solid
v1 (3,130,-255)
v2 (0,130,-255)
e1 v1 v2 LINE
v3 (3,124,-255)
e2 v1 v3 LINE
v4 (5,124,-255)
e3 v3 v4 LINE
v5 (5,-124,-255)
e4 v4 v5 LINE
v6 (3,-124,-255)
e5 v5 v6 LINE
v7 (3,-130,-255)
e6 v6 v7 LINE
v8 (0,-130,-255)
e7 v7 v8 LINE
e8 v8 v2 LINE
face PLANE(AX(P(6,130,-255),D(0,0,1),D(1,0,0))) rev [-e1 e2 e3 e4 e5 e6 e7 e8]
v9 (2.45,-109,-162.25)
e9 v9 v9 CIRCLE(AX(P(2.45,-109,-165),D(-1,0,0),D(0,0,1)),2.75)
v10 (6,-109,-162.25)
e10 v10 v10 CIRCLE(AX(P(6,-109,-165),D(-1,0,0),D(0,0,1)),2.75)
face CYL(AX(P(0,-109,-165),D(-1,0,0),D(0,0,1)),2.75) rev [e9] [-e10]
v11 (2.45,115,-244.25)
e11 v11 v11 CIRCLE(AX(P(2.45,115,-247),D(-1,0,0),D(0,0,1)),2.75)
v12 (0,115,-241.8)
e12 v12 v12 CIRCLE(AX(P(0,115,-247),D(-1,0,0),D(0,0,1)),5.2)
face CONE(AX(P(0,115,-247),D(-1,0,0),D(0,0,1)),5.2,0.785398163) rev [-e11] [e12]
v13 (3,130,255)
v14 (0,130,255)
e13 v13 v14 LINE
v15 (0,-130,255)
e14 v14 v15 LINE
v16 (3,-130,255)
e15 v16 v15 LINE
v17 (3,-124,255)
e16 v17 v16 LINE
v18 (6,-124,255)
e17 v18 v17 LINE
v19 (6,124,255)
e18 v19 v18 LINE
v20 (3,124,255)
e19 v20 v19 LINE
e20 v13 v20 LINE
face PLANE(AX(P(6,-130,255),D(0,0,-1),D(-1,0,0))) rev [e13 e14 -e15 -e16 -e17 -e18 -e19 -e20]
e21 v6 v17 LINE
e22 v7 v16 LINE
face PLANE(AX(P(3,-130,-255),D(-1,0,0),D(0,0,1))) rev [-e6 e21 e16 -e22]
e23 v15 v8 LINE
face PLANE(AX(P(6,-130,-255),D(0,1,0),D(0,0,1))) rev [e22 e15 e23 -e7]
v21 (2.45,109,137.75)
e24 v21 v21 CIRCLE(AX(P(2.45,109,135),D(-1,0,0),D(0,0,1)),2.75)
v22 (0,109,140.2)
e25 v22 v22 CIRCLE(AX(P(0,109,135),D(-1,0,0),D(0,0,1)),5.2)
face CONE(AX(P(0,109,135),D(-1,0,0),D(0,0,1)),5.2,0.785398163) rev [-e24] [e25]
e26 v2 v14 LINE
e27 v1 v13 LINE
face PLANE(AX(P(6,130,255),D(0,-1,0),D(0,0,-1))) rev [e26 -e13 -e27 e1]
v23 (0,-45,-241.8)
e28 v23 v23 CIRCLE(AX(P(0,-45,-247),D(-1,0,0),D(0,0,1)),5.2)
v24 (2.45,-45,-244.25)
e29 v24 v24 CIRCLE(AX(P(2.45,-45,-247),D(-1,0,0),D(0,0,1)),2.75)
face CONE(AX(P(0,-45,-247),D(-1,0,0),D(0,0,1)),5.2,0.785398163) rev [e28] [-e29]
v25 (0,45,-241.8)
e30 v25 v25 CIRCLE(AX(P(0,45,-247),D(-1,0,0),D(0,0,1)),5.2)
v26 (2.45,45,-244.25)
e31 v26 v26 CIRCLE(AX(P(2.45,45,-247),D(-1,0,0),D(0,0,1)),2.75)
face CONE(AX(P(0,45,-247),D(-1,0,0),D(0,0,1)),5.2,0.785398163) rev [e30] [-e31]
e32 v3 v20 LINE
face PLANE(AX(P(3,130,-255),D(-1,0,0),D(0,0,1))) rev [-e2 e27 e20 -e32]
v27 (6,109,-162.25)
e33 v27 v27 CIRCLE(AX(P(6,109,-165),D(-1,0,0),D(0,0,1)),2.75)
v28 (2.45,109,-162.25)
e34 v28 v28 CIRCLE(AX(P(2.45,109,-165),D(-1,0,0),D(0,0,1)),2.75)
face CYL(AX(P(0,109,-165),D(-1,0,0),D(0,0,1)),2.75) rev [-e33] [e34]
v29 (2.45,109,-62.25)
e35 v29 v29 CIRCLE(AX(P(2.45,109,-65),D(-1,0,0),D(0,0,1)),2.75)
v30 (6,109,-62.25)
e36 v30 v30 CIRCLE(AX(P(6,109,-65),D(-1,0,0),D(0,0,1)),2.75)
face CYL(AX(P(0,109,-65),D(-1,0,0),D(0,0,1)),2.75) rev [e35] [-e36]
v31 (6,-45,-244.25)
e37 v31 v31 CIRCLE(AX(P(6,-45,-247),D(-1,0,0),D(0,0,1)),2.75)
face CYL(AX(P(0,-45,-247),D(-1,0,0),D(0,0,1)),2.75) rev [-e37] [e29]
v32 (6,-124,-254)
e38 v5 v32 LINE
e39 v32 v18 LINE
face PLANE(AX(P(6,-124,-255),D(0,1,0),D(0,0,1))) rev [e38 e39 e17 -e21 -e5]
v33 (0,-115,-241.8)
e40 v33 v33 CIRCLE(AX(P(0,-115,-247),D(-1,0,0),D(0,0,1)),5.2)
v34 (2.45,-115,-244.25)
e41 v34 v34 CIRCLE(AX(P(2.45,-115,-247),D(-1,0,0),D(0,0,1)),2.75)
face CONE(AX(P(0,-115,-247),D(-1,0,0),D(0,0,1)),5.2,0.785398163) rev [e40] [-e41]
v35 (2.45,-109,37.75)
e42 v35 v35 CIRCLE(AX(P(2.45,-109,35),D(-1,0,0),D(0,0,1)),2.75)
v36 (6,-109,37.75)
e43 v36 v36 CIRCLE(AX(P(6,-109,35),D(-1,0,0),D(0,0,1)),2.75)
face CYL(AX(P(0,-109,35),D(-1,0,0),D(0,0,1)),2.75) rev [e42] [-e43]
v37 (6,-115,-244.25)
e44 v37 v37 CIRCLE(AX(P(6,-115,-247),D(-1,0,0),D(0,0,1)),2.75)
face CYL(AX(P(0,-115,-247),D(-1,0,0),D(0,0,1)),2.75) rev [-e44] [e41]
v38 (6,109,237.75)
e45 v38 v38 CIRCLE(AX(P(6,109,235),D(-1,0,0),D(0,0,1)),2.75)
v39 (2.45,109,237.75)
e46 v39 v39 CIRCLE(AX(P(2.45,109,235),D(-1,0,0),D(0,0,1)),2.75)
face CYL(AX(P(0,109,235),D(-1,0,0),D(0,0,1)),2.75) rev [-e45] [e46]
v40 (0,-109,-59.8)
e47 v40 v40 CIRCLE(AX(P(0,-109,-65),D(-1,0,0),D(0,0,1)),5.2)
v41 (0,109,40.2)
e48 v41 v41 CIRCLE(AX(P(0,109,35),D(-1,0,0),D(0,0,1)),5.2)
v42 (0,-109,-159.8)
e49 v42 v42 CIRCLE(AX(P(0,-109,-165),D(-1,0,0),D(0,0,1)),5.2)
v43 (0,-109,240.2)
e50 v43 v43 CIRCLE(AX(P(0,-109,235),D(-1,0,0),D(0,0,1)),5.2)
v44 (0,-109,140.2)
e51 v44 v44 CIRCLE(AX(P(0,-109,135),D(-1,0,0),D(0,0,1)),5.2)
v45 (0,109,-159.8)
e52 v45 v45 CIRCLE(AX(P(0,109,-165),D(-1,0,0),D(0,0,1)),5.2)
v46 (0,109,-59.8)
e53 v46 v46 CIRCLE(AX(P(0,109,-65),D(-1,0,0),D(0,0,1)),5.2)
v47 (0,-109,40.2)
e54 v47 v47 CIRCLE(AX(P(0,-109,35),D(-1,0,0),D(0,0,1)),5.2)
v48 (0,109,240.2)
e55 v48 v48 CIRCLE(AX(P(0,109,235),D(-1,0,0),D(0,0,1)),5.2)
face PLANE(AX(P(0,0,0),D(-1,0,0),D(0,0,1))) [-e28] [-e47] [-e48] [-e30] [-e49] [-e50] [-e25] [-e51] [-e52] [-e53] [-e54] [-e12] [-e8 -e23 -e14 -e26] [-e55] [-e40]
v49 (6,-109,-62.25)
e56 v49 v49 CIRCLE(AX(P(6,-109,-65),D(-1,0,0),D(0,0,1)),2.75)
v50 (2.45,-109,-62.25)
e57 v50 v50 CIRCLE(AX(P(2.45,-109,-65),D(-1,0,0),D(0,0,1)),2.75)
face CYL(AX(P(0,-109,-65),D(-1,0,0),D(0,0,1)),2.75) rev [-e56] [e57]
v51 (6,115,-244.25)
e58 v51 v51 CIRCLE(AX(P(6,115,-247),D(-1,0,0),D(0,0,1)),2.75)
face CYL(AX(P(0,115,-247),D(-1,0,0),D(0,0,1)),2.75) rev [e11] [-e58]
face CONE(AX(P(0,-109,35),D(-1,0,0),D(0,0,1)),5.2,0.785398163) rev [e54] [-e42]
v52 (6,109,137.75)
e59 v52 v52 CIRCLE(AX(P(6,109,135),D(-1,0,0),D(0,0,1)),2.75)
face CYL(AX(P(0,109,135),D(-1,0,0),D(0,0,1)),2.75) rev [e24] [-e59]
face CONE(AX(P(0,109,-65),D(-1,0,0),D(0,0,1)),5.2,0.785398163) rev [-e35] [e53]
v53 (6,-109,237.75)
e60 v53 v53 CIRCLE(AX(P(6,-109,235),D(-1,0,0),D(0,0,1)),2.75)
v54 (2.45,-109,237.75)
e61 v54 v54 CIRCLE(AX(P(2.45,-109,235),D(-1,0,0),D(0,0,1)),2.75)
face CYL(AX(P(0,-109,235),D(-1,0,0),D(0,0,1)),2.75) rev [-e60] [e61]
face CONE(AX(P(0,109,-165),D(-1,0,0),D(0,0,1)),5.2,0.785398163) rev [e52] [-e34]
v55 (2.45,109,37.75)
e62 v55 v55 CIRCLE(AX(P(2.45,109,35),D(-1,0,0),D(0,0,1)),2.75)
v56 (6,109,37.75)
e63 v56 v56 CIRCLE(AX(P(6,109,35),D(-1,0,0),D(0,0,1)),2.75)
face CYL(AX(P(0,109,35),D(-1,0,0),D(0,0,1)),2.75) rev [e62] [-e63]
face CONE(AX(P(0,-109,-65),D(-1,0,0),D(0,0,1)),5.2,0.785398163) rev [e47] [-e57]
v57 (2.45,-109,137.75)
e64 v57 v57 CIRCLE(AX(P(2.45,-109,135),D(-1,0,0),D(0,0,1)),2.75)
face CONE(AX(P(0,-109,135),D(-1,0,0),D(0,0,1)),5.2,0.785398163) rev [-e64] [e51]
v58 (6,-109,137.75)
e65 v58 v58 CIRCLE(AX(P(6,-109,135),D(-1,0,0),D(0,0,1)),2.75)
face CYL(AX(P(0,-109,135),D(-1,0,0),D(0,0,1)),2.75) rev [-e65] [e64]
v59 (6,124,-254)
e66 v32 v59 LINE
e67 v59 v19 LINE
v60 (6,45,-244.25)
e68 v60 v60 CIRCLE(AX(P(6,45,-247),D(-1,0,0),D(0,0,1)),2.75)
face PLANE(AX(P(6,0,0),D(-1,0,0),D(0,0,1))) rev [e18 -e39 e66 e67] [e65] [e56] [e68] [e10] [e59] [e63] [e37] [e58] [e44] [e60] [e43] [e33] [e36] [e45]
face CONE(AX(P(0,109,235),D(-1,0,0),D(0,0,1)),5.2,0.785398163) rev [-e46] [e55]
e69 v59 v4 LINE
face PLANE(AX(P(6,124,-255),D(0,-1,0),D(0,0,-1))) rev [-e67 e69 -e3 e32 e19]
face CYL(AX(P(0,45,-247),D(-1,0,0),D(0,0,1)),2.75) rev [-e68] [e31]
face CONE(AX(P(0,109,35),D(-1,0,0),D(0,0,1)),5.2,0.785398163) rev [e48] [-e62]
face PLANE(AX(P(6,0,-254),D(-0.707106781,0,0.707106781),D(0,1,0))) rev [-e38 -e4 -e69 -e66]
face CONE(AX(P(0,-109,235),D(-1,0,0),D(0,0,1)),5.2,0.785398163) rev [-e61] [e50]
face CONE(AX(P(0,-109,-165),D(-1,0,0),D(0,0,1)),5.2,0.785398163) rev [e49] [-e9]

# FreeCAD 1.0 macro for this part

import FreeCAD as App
import Part
import Sketcher


def edges_at(feature, points):
    """Names of the edges that pass closest to the given points."""
    edges = feature.Shape.Edges
    near = lambda p: min(range(len(edges)), key=lambda i: edges[i].distToShape(Part.Vertex(*p))[0])
    return sorted({f"Edge{near(p) + 1}" for p in points})

doc = App.newDocument("Part")
params = doc.addObject("Spreadsheet::Sheet", "Params")
for row, (alias, value) in enumerate([
    ("sketch1_width", "260 mm"),
    ("sketch1_height", "510 mm"),
    ("pad1_length", "6 mm"),
    ("sketch2_width", "3 mm"),
    ("sketch2_height", "6 mm"),
    ("sketch3_diameter", "5.5 mm"),
    ("hole_diameter", "5.5 mm"),
    ("hole_csink_diameter", "10.4 mm"),
    ("chamfer_size", "1 mm"),
    ("sketch4_diameter", "5.5 mm"),
    ("hole2_diameter", "5.5 mm"),
    ("hole2_csink_diameter", "10.4 mm"),
    ("linearpattern_pitch", "100 mm"),
    ("sketch5_diameter", "5.5 mm"),
    ("hole3_diameter", "5.5 mm"),
    ("hole3_csink_diameter", "10.4 mm"),
    ("sketch6_diameter", "5.5 mm"),
    ("hole4_diameter", "5.5 mm"),
    ("hole4_csink_diameter", "10.4 mm"),
    ("sketch7_diameter", "5.5 mm"),
    ("hole5_diameter", "5.5 mm"),
    ("hole5_csink_diameter", "10.4 mm"),
    ("sketch8_diameter", "5.5 mm"),
    ("hole6_diameter", "5.5 mm"),
    ("hole6_csink_diameter", "10.4 mm"),
], start=1):
    params.set(f"A{row}", alias)
    params.set(f"B{row}", "=" + value)
    params.setAlias(f"B{row}", alias)

body = doc.addObject("PartDesign::Body", "Body")

sketch1 = body.newObject("Sketcher::SketchObject", "Sketch")
sketch1.AttachmentSupport = (doc.getObject("YZ_Plane"), [""])
sketch1.MapMode = "FlatFace"
sketch1.addGeometry([
    Part.LineSegment(App.Vector(130, 255, 0), App.Vector(-130, 255, 0)),
    Part.LineSegment(App.Vector(-130, 255, 0), App.Vector(-130, -255, 0)),
    Part.LineSegment(App.Vector(-130, -255, 0), App.Vector(130, -255, 0)),
    Part.LineSegment(App.Vector(130, -255, 0), App.Vector(130, 255, 0)),
], False)
sketch1.addConstraint([
    Sketcher.Constraint("Coincident", 0, 2, 1, 1),
    Sketcher.Constraint("Coincident", 1, 2, 2, 1),
    Sketcher.Constraint("Coincident", 2, 2, 3, 1),
    Sketcher.Constraint("Coincident", 3, 2, 0, 1),
    Sketcher.Constraint("Horizontal", 0),
    Sketcher.Constraint("Vertical", 1),
    Sketcher.Constraint("Horizontal", 2),
    Sketcher.Constraint("Vertical", 3),
    Sketcher.Constraint("Symmetric", 0, 2, 2, 2, -1, 1),
    Sketcher.Constraint("DistanceX", 0, 2, 0, 1, 260.0),
    Sketcher.Constraint("DistanceY", 1, 2, 1, 1, 510.0),
])
sketch1.setExpression("Constraints[9]", "Params.sketch1_width")
sketch1.setExpression("Constraints[10]", "Params.sketch1_height")
pad1 = body.newObject("PartDesign::Pad", "Pad")
pad1.Profile = sketch1
pad1.setExpression("Length", "Params.pad1_length")

sketch2 = body.newObject("Sketcher::SketchObject", "Sketch001")
sketch2.AttachmentSupport = (doc.getObject("XY_Plane"), [""])
sketch2.MapMode = "FlatFace"
sketch2.AttachmentOffset = App.Placement(App.Vector(0, 0, 255), App.Rotation())
sketch2.addGeometry([
    Part.LineSegment(App.Vector(3, 130, 0), App.Vector(3, 124, 0)),
    Part.LineSegment(App.Vector(3, 124, 0), App.Vector(6, 124, 0)),
    Part.LineSegment(App.Vector(6, 124, 0), App.Vector(6, 130, 0)),
    Part.LineSegment(App.Vector(6, 130, 0), App.Vector(3, 130, 0)),
    Part.LineSegment(App.Vector(3, -124, 0), App.Vector(3, -130, 0)),
    Part.LineSegment(App.Vector(3, -130, 0), App.Vector(6, -130, 0)),
    Part.LineSegment(App.Vector(6, -130, 0), App.Vector(6, -124, 0)),
    Part.LineSegment(App.Vector(6, -124, 0), App.Vector(3, -124, 0)),
], False)
sketch2.addConstraint([
    Sketcher.Constraint("Coincident", 0, 2, 1, 1),
    Sketcher.Constraint("Coincident", 1, 2, 2, 1),
    Sketcher.Constraint("Coincident", 2, 2, 3, 1),
    Sketcher.Constraint("Coincident", 3, 2, 0, 1),
    Sketcher.Constraint("Coincident", 4, 2, 5, 1),
    Sketcher.Constraint("Coincident", 5, 2, 6, 1),
    Sketcher.Constraint("Coincident", 6, 2, 7, 1),
    Sketcher.Constraint("Coincident", 7, 2, 4, 1),
    Sketcher.Constraint("Vertical", 0),
    Sketcher.Constraint("Horizontal", 1),
    Sketcher.Constraint("Vertical", 2),
    Sketcher.Constraint("Horizontal", 3),
    Sketcher.Constraint("Vertical", 4),
    Sketcher.Constraint("Horizontal", 5),
    Sketcher.Constraint("Vertical", 6),
    Sketcher.Constraint("Horizontal", 7),
    Sketcher.Constraint("Symmetric", 3, 2, 4, 2, -1),
    Sketcher.Constraint("Symmetric", 1, 2, 6, 2, -1),
    Sketcher.Constraint("DistanceX", 1, 1, 1, 2, 3.0),
    Sketcher.Constraint("DistanceY", 0, 2, 0, 1, 6.0),
    Sketcher.Constraint("DistanceX", -1, 1, 0, 2, 3.0),
    Sketcher.Constraint("DistanceY", -1, 1, 0, 2, 124.0),
])
sketch2.setExpression("Constraints[18]", "Params.sketch2_width")
sketch2.setExpression("Constraints[19]", "Params.sketch2_height")
pocket1 = body.newObject("PartDesign::Pocket", "Pocket")
pocket1.Profile = sketch2
pocket1.Type = "ThroughAll"

sketch3 = body.newObject("Sketcher::SketchObject", "Sketch002")
sketch3.AttachmentSupport = (doc.getObject("YZ_Plane"), [""])
sketch3.MapMode = "FlatFace"
sketch3.addGeometry([
    Part.Circle(App.Vector(115, -247, 0), App.Vector(0, 0, 1), 2.8),
    Part.Circle(App.Vector(45, -247, 0), App.Vector(0, 0, 1), 2.8),
], False)
sketch3.addConstraint([
    Sketcher.Constraint("Equal", 0, 1),
    Sketcher.Constraint("Horizontal", 0, 3, 1, 3),
    Sketcher.Constraint("Diameter", 0, 5.5),
    Sketcher.Constraint("DistanceX", -1, 1, 0, 3, 115.0),
    Sketcher.Constraint("DistanceY", 0, 3, -1, 1, 247.0),
    Sketcher.Constraint("DistanceX", -1, 1, 1, 3, 45.0),
])
sketch3.setExpression("Constraints[2]", "Params.sketch3_diameter")
doc.recompute()
hole = body.newObject("PartDesign::Hole", "Hole")
hole.Profile = sketch3
hole.ThreadType = "None"
hole.setExpression("Diameter", "Params.hole_diameter")
hole.DepthType = "ThroughAll"
hole.HoleCutType = "Countersink"
hole.setExpression("HoleCutDiameter", "Params.hole_csink_diameter")
hole.HoleCutCountersinkAngle = 90
hole.Reversed = True
doc.recompute()

mirrored = body.newObject("PartDesign::Mirrored", "Mirrored")
mirrored.Originals = [hole]
mirrored.MirrorPlane = (doc.getObject("XZ_Plane"), [""])
body.Tip = mirrored
doc.recompute()

chamfer = body.newObject("PartDesign::Chamfer", "Chamfer")
chamfer.Base = (mirrored, edges_at(mirrored, [(6, 0, -255)]))
chamfer.setExpression("Size", "Params.chamfer_size")

sketch4 = body.newObject("Sketcher::SketchObject", "Sketch003")
sketch4.AttachmentSupport = (doc.getObject("YZ_Plane"), [""])
sketch4.MapMode = "FlatFace"
sketch4.addGeometry(Part.Circle(App.Vector(-109, 235, 0), App.Vector(0, 0, 1), 2.8), False)
sketch4.addConstraint([
    Sketcher.Constraint("Diameter", 0, 5.5),
    Sketcher.Constraint("DistanceX", 0, 3, -1, 1, 109.0),
    Sketcher.Constraint("DistanceY", -1, 1, 0, 3, 235.0),
])
sketch4.setExpression("Constraints[0]", "Params.sketch4_diameter")
doc.recompute()
hole2 = body.newObject("PartDesign::Hole", "Hole001")
hole2.Profile = sketch4
hole2.ThreadType = "None"
hole2.setExpression("Diameter", "Params.hole2_diameter")
hole2.DepthType = "ThroughAll"
hole2.HoleCutType = "Countersink"
hole2.setExpression("HoleCutDiameter", "Params.hole2_csink_diameter")
hole2.HoleCutCountersinkAngle = 90
hole2.Reversed = True
doc.recompute()

linearpattern = body.newObject("PartDesign::LinearPattern", "LinearPattern")
linearpattern.Originals = [hole2]
linearpattern.Direction = (doc.getObject("Z_Axis"), [""])
linearpattern.Mode = "offset"
linearpattern.setExpression("Offset", "Params.linearpattern_pitch")
linearpattern.Occurrences = 5
linearpattern.Reversed = True
body.Tip = linearpattern
doc.recompute()

mirrored2 = body.newObject("PartDesign::Mirrored", "Mirrored001")
mirrored2.Originals = [hole2]
mirrored2.MirrorPlane = (doc.getObject("XZ_Plane"), [""])
body.Tip = mirrored2

sketch5 = body.newObject("Sketcher::SketchObject", "Sketch004")
sketch5.AttachmentSupport = (doc.getObject("YZ_Plane"), [""])
sketch5.MapMode = "FlatFace"
sketch5.addGeometry(Part.Circle(App.Vector(109, 135, 0), App.Vector(0, 0, 1), 2.8), False)
sketch5.addConstraint([
    Sketcher.Constraint("Diameter", 0, 5.5),
    Sketcher.Constraint("DistanceX", -1, 1, 0, 3, 109.0),
    Sketcher.Constraint("DistanceY", -1, 1, 0, 3, 135.0),
])
sketch5.setExpression("Constraints[0]", "Params.sketch5_diameter")
doc.recompute()
hole3 = body.newObject("PartDesign::Hole", "Hole002")
hole3.Profile = sketch5
hole3.ThreadType = "None"
hole3.setExpression("Diameter", "Params.hole3_diameter")
hole3.DepthType = "ThroughAll"
hole3.HoleCutType = "Countersink"
hole3.setExpression("HoleCutDiameter", "Params.hole3_csink_diameter")
hole3.HoleCutCountersinkAngle = 90
hole3.Reversed = True

sketch6 = body.newObject("Sketcher::SketchObject", "Sketch005")
sketch6.AttachmentSupport = (doc.getObject("YZ_Plane"), [""])
sketch6.MapMode = "FlatFace"
sketch6.addGeometry(Part.Circle(App.Vector(109, 35, 0), App.Vector(0, 0, 1), 2.8), False)
sketch6.addConstraint([
    Sketcher.Constraint("Diameter", 0, 5.5),
    Sketcher.Constraint("DistanceX", -1, 1, 0, 3, 109.0),
    Sketcher.Constraint("DistanceY", -1, 1, 0, 3, 35.0),
])
sketch6.setExpression("Constraints[0]", "Params.sketch6_diameter")
doc.recompute()
hole4 = body.newObject("PartDesign::Hole", "Hole003")
hole4.Profile = sketch6
hole4.ThreadType = "None"
hole4.setExpression("Diameter", "Params.hole4_diameter")
hole4.DepthType = "ThroughAll"
hole4.HoleCutType = "Countersink"
hole4.setExpression("HoleCutDiameter", "Params.hole4_csink_diameter")
hole4.HoleCutCountersinkAngle = 90
hole4.Reversed = True

sketch7 = body.newObject("Sketcher::SketchObject", "Sketch006")
sketch7.AttachmentSupport = (doc.getObject("YZ_Plane"), [""])
sketch7.MapMode = "FlatFace"
sketch7.addGeometry(Part.Circle(App.Vector(109, -65, 0), App.Vector(0, 0, 1), 2.8), False)
sketch7.addConstraint([
    Sketcher.Constraint("Diameter", 0, 5.5),
    Sketcher.Constraint("DistanceX", -1, 1, 0, 3, 109.0),
    Sketcher.Constraint("DistanceY", 0, 3, -1, 1, 65.0),
])
sketch7.setExpression("Constraints[0]", "Params.sketch7_diameter")
doc.recompute()
hole5 = body.newObject("PartDesign::Hole", "Hole004")
hole5.Profile = sketch7
hole5.ThreadType = "None"
hole5.setExpression("Diameter", "Params.hole5_diameter")
hole5.DepthType = "ThroughAll"
hole5.HoleCutType = "Countersink"
hole5.setExpression("HoleCutDiameter", "Params.hole5_csink_diameter")
hole5.HoleCutCountersinkAngle = 90
hole5.Reversed = True

sketch8 = body.newObject("Sketcher::SketchObject", "Sketch007")
sketch8.AttachmentSupport = (doc.getObject("YZ_Plane"), [""])
sketch8.MapMode = "FlatFace"
sketch8.addGeometry(Part.Circle(App.Vector(109, -165, 0), App.Vector(0, 0, 1), 2.8), False)
sketch8.addConstraint([
    Sketcher.Constraint("Diameter", 0, 5.5),
    Sketcher.Constraint("DistanceX", -1, 1, 0, 3, 109.0),
    Sketcher.Constraint("DistanceY", 0, 3, -1, 1, 165.0),
])
sketch8.setExpression("Constraints[0]", "Params.sketch8_diameter")
doc.recompute()
hole6 = body.newObject("PartDesign::Hole", "Hole005")
hole6.Profile = sketch8
hole6.ThreadType = "None"
hole6.setExpression("Diameter", "Params.hole6_diameter")
hole6.DepthType = "ThroughAll"
hole6.HoleCutType = "Countersink"
hole6.setExpression("HoleCutDiameter", "Params.hole6_csink_diameter")
hole6.HoleCutCountersinkAngle = 90
hole6.Reversed = True

doc.recompute()
